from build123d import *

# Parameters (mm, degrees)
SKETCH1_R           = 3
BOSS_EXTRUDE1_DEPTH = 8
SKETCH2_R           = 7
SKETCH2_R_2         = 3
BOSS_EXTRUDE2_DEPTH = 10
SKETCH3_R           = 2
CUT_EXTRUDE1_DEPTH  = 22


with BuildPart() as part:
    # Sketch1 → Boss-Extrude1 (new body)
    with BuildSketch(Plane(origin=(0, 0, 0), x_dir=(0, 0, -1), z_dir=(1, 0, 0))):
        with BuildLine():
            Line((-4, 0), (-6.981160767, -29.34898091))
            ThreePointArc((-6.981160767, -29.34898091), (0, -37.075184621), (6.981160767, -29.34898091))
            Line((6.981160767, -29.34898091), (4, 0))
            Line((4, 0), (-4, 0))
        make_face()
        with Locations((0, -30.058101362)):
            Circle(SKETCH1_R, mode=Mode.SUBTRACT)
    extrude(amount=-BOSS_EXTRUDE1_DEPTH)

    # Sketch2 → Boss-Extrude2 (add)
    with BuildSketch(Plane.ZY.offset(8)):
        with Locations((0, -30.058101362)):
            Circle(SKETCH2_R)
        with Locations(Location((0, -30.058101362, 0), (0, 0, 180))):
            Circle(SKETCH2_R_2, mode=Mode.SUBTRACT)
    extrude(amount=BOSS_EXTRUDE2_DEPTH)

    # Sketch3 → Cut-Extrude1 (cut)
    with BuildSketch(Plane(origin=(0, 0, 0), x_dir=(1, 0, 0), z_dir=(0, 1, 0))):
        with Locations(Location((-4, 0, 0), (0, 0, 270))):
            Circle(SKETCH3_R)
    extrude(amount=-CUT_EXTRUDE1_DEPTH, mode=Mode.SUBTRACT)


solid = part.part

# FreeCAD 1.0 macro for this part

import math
import FreeCAD as App
import Part
import Sketcher

V = App.Vector
Q = App.Units.Quantity

doc = App.newDocument("Part")
body = doc.addObject("PartDesign::Body", "Body")

# Sketch on YZ plane
sketch1 = body.newObject("Sketcher::SketchObject", "Sketch")
sketch1.AttachmentSupport = (doc.getObject("YZ_Plane"), [""])
sketch1.MapMode = "FlatFace"
sketch1.addGeometry(Part.LineSegment(V(0, 4, 0), V(-29.3, 7, 0)), False)
sketch1.addGeometry(Part.ArcOfCircle(Part.Circle(V(-30.1, 0, 0), V(0, 0, 1), 7), math.radians(84), math.radians(276)), False)
sketch1.addGeometry(Part.LineSegment(V(-29.3, -7, 0), V(0, -4, 0)), False)
sketch1.addGeometry(Part.LineSegment(V(0, -4, 0), V(0, 4, 0)), False)
sketch1.addGeometry(Part.Circle(V(-30.1, 0, 0), V(0, 0, 1), 3), False)
sketch1.addConstraint(Sketcher.Constraint("Tangent", 0, 2, 1, 1))
sketch1.addConstraint(Sketcher.Constraint("Tangent", 1, 2, 2, 1))
sketch1.addConstraint(Sketcher.Constraint("Coincident", 2, 2, 3, 1))
sketch1.addConstraint(Sketcher.Constraint("Coincident", 3, 2, 0, 1))
sketch1.addConstraint(Sketcher.Constraint("Vertical", 3))
sketch1.addConstraint(Sketcher.Constraint("Coincident", 4, 3, 1, 3))
sketch1.addConstraint(Sketcher.Constraint("Symmetric", 2, 2, 3, 2, -1, 1))
sketch1.addConstraint(Sketcher.Constraint("PointOnObject", 1, 3, -1))
sketch1.addConstraint(Sketcher.Constraint("Diameter", 4, 6.0))
sketch1.addConstraint(Sketcher.Constraint("DistanceY", 3, 1, 3, 2, 8.0))
sketch1.addConstraint(Sketcher.Constraint("Angle", 0, Q("174.2 deg")))
sketch1.addConstraint(Sketcher.Constraint("Distance", 0, 29.5))
pad1 = body.newObject("PartDesign::Pad", "Pad")
pad1.Profile = sketch1
pad1.Length = 8
pad1.Reversed = True

# Sketch on YZ plane
sketch2 = body.newObject("Sketcher::SketchObject", "Sketch001")
sketch2.AttachmentSupport = (doc.getObject("YZ_Plane"), [""])
sketch2.MapMode = "FlatFace"
sketch2.AttachmentOffset = App.Placement(V(0, 0, -8), App.Rotation())
sketch2.addGeometry(Part.Circle(V(-30.1, 0, 0), V(0, 0, 1), 7), False)
sketch2.addGeometry(Part.Circle(V(-30.1, 0, 0), V(0, 0, 1), 3), False)
sketch2.addConstraint(Sketcher.Constraint("Coincident", 1, 3, 0, 3))
sketch2.addConstraint(Sketcher.Constraint("PointOnObject", 0, 3, -1))
sketch2.addConstraint(Sketcher.Constraint("Diameter", 0, 14.0))
sketch2.addConstraint(Sketcher.Constraint("Diameter", 1, 6.0))
sketch2.addConstraint(Sketcher.Constraint("DistanceX", 0, 3, -1, 1, 30.058101))
pad2 = body.newObject("PartDesign::Pad", "Pad001")
pad2.Profile = sketch2
pad2.Length = 10
pad2.Reversed = True

# Sketch on XZ plane
sketch3 = body.newObject("Sketcher::SketchObject", "Sketch002")
sketch3.AttachmentSupport = (doc.getObject("XZ_Plane"), [""])
sketch3.MapMode = "FlatFace"
sketch3.addGeometry(Part.Circle(V(-4, 0, 0), V(0, 0, 1), 2), False)
sketch3.addConstraint(Sketcher.Constraint("PointOnObject", 0, 3, -1))
sketch3.addConstraint(Sketcher.Constraint("Diameter", 0, 4.0))
sketch3.addConstraint(Sketcher.Constraint("DistanceX", 0, 3, -1, 1, 4.0))
pocket1 = body.newObject("PartDesign::Pocket", "Pocket")
pocket1.Profile = sketch3
pocket1.Length = 22
pocket1.Reversed = True

doc.recompute()
